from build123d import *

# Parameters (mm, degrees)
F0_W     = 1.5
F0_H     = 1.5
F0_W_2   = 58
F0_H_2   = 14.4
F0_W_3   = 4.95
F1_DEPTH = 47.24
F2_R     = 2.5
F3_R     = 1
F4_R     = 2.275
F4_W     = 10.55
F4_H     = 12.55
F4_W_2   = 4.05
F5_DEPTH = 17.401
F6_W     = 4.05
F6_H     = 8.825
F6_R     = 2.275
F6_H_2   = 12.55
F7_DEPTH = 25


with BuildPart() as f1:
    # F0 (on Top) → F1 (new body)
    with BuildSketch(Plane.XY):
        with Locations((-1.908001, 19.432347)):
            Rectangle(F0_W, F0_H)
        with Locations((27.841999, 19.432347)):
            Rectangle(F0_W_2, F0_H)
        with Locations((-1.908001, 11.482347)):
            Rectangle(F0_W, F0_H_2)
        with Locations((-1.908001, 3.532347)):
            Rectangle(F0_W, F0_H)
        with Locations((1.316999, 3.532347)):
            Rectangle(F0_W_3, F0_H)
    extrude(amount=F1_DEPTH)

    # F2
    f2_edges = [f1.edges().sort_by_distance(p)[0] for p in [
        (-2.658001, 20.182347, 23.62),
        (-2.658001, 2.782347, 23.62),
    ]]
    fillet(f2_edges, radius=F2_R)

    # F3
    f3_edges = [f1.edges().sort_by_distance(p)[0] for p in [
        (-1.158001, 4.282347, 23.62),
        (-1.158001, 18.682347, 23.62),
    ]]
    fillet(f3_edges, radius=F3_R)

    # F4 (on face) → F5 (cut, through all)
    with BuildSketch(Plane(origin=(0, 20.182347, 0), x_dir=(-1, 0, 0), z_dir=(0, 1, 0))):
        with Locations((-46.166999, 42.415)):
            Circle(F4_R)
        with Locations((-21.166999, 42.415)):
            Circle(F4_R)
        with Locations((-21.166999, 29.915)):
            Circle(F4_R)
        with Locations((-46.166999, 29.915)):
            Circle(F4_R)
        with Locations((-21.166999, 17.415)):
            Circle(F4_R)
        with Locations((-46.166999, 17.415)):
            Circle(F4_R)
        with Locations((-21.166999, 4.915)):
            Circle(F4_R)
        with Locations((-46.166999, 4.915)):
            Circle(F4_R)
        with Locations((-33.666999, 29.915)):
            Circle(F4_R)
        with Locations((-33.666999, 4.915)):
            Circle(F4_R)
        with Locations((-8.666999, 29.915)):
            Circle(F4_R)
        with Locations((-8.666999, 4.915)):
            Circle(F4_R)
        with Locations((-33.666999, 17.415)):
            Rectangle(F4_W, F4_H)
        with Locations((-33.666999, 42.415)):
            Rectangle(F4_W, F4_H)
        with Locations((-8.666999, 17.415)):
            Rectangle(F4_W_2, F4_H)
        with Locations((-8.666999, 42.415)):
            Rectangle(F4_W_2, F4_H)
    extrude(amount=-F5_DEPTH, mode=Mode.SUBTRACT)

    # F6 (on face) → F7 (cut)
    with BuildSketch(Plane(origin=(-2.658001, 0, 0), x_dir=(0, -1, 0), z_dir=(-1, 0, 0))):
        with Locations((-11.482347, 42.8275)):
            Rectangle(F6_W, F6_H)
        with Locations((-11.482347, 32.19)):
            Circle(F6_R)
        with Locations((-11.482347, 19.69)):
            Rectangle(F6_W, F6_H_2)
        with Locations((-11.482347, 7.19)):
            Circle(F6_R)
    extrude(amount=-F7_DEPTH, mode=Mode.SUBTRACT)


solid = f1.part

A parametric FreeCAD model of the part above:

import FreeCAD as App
import Part
import Sketcher
Q = App.Units.Quantity


def edges_at(feature, points):
    """Names of the edges that pass closest to the given points."""
    edges = feature.Shape.Edges
    near = lambda p: min(range(len(edges)), key=lambda i: edges[i].distToShape(Part.Vertex(*p))[0])
    return sorted({f"Edge{near(p) + 1}" for p in points})


def add_polygon(sketch, points):
    """Adds a closed chain of lines whose ends are joined by coincident constraints."""
    first, n = sketch.GeometryCount, len(points)
    for a, b in zip(points, points[1:] + points[:1]):
        sketch.addGeometry(Part.LineSegment(App.Vector(*a, 0), App.Vector(*b, 0)), False)
    for i in range(n):
        sketch.addConstraint(Sketcher.Constraint("Coincident", first + i, 2, first + (i + 1) % n, 1))

doc = App.newDocument("Part")
body = doc.addObject("PartDesign::Body", "Body")

# Sketch on XY plane
sketch1 = doc.addObject("Sketcher::SketchObject", "Sketch")
body.addObject(sketch1)
sketch1.AttachmentSupport = (doc.XY_Plane, [""])
sketch1.MapMode = "FlatFace"
add_polygon(sketch1, [(-2.7, 20.2), (-2.7, 2.8), (3.8, 2.8), (3.8, 4.3), (-1.2, 4.3), (-1.2, 18.7), (56.8, 18.7), (56.8, 20.2)])  # lines 0-7
sketch1.addConstraint(Sketcher.Constraint("Vertical", 0))
sketch1.addConstraint(Sketcher.Constraint("Horizontal", 1))
sketch1.addConstraint(Sketcher.Constraint("Vertical", 2))
sketch1.addConstraint(Sketcher.Constraint("Horizontal", 3))
sketch1.addConstraint(Sketcher.Constraint("Vertical", 4))
sketch1.addConstraint(Sketcher.Constraint("Horizontal", 5))
sketch1.addConstraint(Sketcher.Constraint("Vertical", 6))
sketch1.addConstraint(Sketcher.Constraint("Horizontal", 7))
sketch1.addConstraint(Sketcher.Constraint("Equal", 2, 6))
sketch1.addConstraint(Sketcher.Constraint("DistanceX", 5, 1, 5, 2, Q("58 mm")))
sketch1.addConstraint(Sketcher.Constraint("DistanceX", 7, 2, 7, 1, Q("59.5 mm")))
sketch1.addConstraint(Sketcher.Constraint("DistanceY", 0, 2, 0, 1, Q("17.4 mm")))
sketch1.addConstraint(Sketcher.Constraint("DistanceY", 2, 1, 2, 2, Q("1.5 mm")))
sketch1.addConstraint(Sketcher.Constraint("DistanceX", 1, 1, 1, 2, Q("6.45 mm")))
sketch1.addConstraint(Sketcher.Constraint("DistanceX", 0, 2, -1, 1, Q("2.658001 mm")))
sketch1.addConstraint(Sketcher.Constraint("DistanceY", -1, 1, 0, 2, Q("2.782347 mm")))
pad1 = doc.addObject("PartDesign::Pad", "Pad")
body.addObject(pad1)
pad1.Profile = sketch1
pad1.Length = 47.24
doc.recompute()

fillet = doc.addObject("PartDesign::Fillet", "Fillet")
body.addObject(fillet)
fillet.Base = (pad1, edges_at(pad1, [(-2.658, 20.182, 23.62), (-2.658, 2.782, 23.62)]))
fillet.Radius = 2.5
doc.recompute()

fillet2 = doc.addObject("PartDesign::Fillet", "Fillet001")
body.addObject(fillet2)
fillet2.Base = (fillet, edges_at(fillet, [(-1.158, 4.282, 23.62), (-1.158, 18.682, 23.62)]))
fillet2.Radius = 1

# Sketch on XZ plane
sketch2 = doc.addObject("Sketcher::SketchObject", "Sketch001")
body.addObject(sketch2)
sketch2.AttachmentSupport = (doc.XZ_Plane, [""])
sketch2.MapMode = "FlatFace"
sketch2.AttachmentOffset = App.Placement(App.Vector(0, 0, -20.182347), App.Rotation())
sketch2.addGeometry(Part.Circle(App.Vector(46.2, 42.4, 0), App.Vector(0, 0, 1), 2.3), False)  # 0
sketch2.addGeometry(Part.Circle(App.Vector(21.2, 42.4, 0), App.Vector(0, 0, 1), 2.3), False)  # 1
sketch2.addGeometry(Part.Circle(App.Vector(21.2, 29.9, 0), App.Vector(0, 0, 1), 2.3), False)  # 2
sketch2.addGeometry(Part.Circle(App.Vector(46.2, 29.9, 0), App.Vector(0, 0, 1), 2.3), False)  # 3
sketch2.addGeometry(Part.Circle(App.Vector(21.2, 17.4, 0), App.Vector(0, 0, 1), 2.3), False)  # 4
sketch2.addGeometry(Part.Circle(App.Vector(46.2, 17.4, 0), App.Vector(0, 0, 1), 2.3), False)  # 5
sketch2.addGeometry(Part.Circle(App.Vector(21.2, 4.9, 0), App.Vector(0, 0, 1), 2.3), False)  # 6
sketch2.addGeometry(Part.Circle(App.Vector(46.2, 4.9, 0), App.Vector(0, 0, 1), 2.3), False)  # 7
sketch2.addGeometry(Part.Circle(App.Vector(33.7, 29.9, 0), App.Vector(0, 0, 1), 2.3), False)  # 8
sketch2.addGeometry(Part.Circle(App.Vector(33.7, 4.9, 0), App.Vector(0, 0, 1), 2.3), False)  # 9
sketch2.addGeometry(Part.Circle(App.Vector(8.7, 29.9, 0), App.Vector(0, 0, 1), 2.3), False)  # 10
sketch2.addGeometry(Part.Circle(App.Vector(8.7, 4.9, 0), App.Vector(0, 0, 1), 2.3), False)  # 11
add_polygon(sketch2, [(38.9, 23.7), (38.9, 11.1), (28.4, 11.1), (28.4, 23.7)])  # lines 12-15
add_polygon(sketch2, [(38.9, 48.7), (38.9, 36.1), (28.4, 36.1), (28.4, 48.7)])  # lines 16-19
add_polygon(sketch2, [(10.7, 23.7), (10.7, 11.1), (6.6, 11.1), (6.6, 23.7)])  # lines 20-23
add_polygon(sketch2, [(10.7, 48.7), (10.7, 36.1), (6.6, 36.1), (6.6, 48.7)])  # lines 24-27
sketch2.addConstraint(Sketcher.Constraint("Vertical", 12))
sketch2.addConstraint(Sketcher.Constraint("Horizontal", 13))
sketch2.addConstraint(Sketcher.Constraint("Vertical", 14))
sketch2.addConstraint(Sketcher.Constraint("Horizontal", 15))
sketch2.addConstraint(Sketcher.Constraint("Vertical", 16))
sketch2.addConstraint(Sketcher.Constraint("Horizontal", 17))
sketch2.addConstraint(Sketcher.Constraint("Vertical", 18))
sketch2.addConstraint(Sketcher.Constraint("Horizontal", 19))
sketch2.addConstraint(Sketcher.Constraint("Vertical", 20))
sketch2.addConstraint(Sketcher.Constraint("Horizontal", 21))
sketch2.addConstraint(Sketcher.Constraint("Vertical", 22))
sketch2.addConstraint(Sketcher.Constraint("Horizontal", 23))
sketch2.addConstraint(Sketcher.Constraint("Vertical", 24))
sketch2.addConstraint(Sketcher.Constraint("Horizontal", 25))
sketch2.addConstraint(Sketcher.Constraint("Vertical", 26))
sketch2.addConstraint(Sketcher.Constraint("Horizontal", 27))
sketch2.addConstraint(Sketcher.Constraint("Equal", 0, 1))
sketch2.addConstraint(Sketcher.Constraint("Equal", 1, 2))
sketch2.addConstraint(Sketcher.Constraint("Equal", 2, 3))
sketch2.addConstraint(Sketcher.Constraint("Equal", 3, 4))
sketch2.addConstraint(Sketcher.Constraint("Equal", 4, 5))
sketch2.addConstraint(Sketcher.Constraint("Equal", 5, 6))
sketch2.addConstraint(Sketcher.Constraint("Equal", 6, 7))
sketch2.addConstraint(Sketcher.Constraint("Equal", 7, 8))
sketch2.addConstraint(Sketcher.Constraint("Equal", 8, 9))
sketch2.addConstraint(Sketcher.Constraint("Equal", 9, 10))
sketch2.addConstraint(Sketcher.Constraint("Equal", 10, 11))
sketch2.addConstraint(Sketcher.Constraint("Horizontal", 0, 3, 1, 3))
sketch2.addConstraint(Sketcher.Constraint("Horizontal", 2, 3, 3, 3))
sketch2.addConstraint(Sketcher.Constraint("Horizontal", 4, 3, 5, 3))
sketch2.addConstraint(Sketcher.Constraint("Horizontal", 6, 3, 7, 3))
sketch2.addConstraint(Sketcher.Constraint("Horizontal", 3, 3, 8, 3))
sketch2.addConstraint(Sketcher.Constraint("Horizontal", 7, 3, 9, 3))
sketch2.addConstraint(Sketcher.Constraint("Horizontal", 8, 3, 10, 3))
sketch2.addConstraint(Sketcher.Constraint("Horizontal", 9, 3, 11, 3))
sketch2.addConstraint(Sketcher.Constraint("Horizontal", 13, 2, 20, 2))
sketch2.addConstraint(Sketcher.Constraint("Horizontal", 15, 2, 22, 2))
sketch2.addConstraint(Sketcher.Constraint("Horizontal", 17, 2, 24, 2))
sketch2.addConstraint(Sketcher.Constraint("Horizontal", 19, 2, 26, 2))
sketch2.addConstraint(Sketcher.Constraint("Vertical", 1, 3, 2, 3))
sketch2.addConstraint(Sketcher.Constraint("Vertical", 0, 3, 3, 3))
sketch2.addConstraint(Sketcher.Constraint("Vertical", 2, 3, 4, 3))
sketch2.addConstraint(Sketcher.Constraint("Vertical", 3, 3, 5, 3))
sketch2.addConstraint(Sketcher.Constraint("Vertical", 4, 3, 6, 3))
sketch2.addConstraint(Sketcher.Constraint("Vertical", 5, 3, 7, 3))
sketch2.addConstraint(Sketcher.Constraint("Vertical", 8, 3, 9, 3))
sketch2.addConstraint(Sketcher.Constraint("Vertical", 10, 3, 11, 3))
sketch2.addConstraint(Sketcher.Constraint("Vertical", 15, 2, 16, 2))
sketch2.addConstraint(Sketcher.Constraint("Vertical", 14, 2, 17, 2))
sketch2.addConstraint(Sketcher.Constraint("Vertical", 23, 2, 24, 2))
sketch2.addConstraint(Sketcher.Constraint("Vertical", 22, 2, 25, 2))
sketch2.addConstraint(Sketcher.Constraint("Equal", 14, 16))
sketch2.addConstraint(Sketcher.Constraint("Diameter", 0, Q("4.55 mm")))
sketch2.addConstraint(Sketcher.Constraint("DistanceX", 1, 3, 0, 3, Q("25 mm")))
sketch2.addConstraint(Sketcher.Constraint("DistanceY", 4, 3, 1, 3, Q("25 mm")))
sketch2.addConstraint(Sketcher.Constraint("DistanceY", 6, 3, 2, 3, Q("25 mm")))
sketch2.addConstraint(Sketcher.Constraint("DistanceX", 10, 3, 8, 3, Q("25 mm")))
sketch2.addConstraint(Sketcher.Constraint("DistanceX", 13, 2, 13, 1, Q("10.55 mm")))
sketch2.addConstraint(Sketcher.Constraint("DistanceX", 21, 2, 21, 1, Q("4.05 mm")))
sketch2.addConstraint(Sketcher.Constraint("DistanceY", 12, 2, 12, 1, Q("12.55 mm")))
sketch2.addConstraint(Sketcher.Constraint("DistanceY", 2, 3, 1, 3, Q("12.5 mm")))
sketch2.addConstraint(Sketcher.Constraint("DistanceX", 2, 3, 8, 3, Q("12.5 mm")))
sketch2.addConstraint(Sketcher.Constraint("DistanceX", 20, 2, 13, 2, Q("17.7 mm")))
sketch2.addConstraint(Sketcher.Constraint("DistanceY", -1, 1, 12, 2, Q("11.14 mm")))
sketch2.addConstraint(Sketcher.Constraint("DistanceY", -1, 1, 16, 2, Q("36.14 mm")))
sketch2.addConstraint(Sketcher.Constraint("DistanceX", -1, 1, 0, 3, Q("46.166999 mm")))
sketch2.addConstraint(Sketcher.Constraint("DistanceY", -1, 1, 0, 3, Q("42.415 mm")))
sketch2.addConstraint(Sketcher.Constraint("DistanceX", -1, 1, 12, 2, Q("38.941999 mm")))
pocket1 = doc.addObject("PartDesign::Pocket", "Pocket")
body.addObject(pocket1)
pocket1.Profile = sketch2
pocket1.Type = "ThroughAll"
pocket1.Reversed = True

# Sketch on YZ plane
sketch3 = doc.addObject("Sketcher::SketchObject", "Sketch002")
body.addObject(sketch3)
sketch3.AttachmentSupport = (doc.YZ_Plane, [""])
sketch3.MapMode = "FlatFace"
sketch3.AttachmentOffset = App.Placement(App.Vector(0, 0, -2.658001), App.Rotation())
add_polygon(sketch3, [(13.5, 47.2), (13.5, 38.4), (9.5, 38.4), (9.5, 47.2)])  # lines 0-3
sketch3.addGeometry(Part.Circle(App.Vector(11.5, 32.2, 0), App.Vector(0, 0, 1), 2.3), False)  # 4
add_polygon(sketch3, [(13.5, 26), (13.5, 13.4), (9.5, 13.4), (9.5, 26)])  # lines 5-8
sketch3.addGeometry(Part.Circle(App.Vector(11.5, 7.2, 0), App.Vector(0, 0, 1), 2.3), False)  # 9
sketch3.addConstraint(Sketcher.Constraint("Vertical", 0))
sketch3.addConstraint(Sketcher.Constraint("Horizontal", 1))
sketch3.addConstraint(Sketcher.Constraint("Vertical", 2))
sketch3.addConstraint(Sketcher.Constraint("Horizontal", 3))
sketch3.addConstraint(Sketcher.Constraint("Vertical", 5))
sketch3.addConstraint(Sketcher.Constraint("Horizontal", 6))
sketch3.addConstraint(Sketcher.Constraint("Vertical", 7))
sketch3.addConstraint(Sketcher.Constraint("Horizontal", 8))
sketch3.addConstraint(Sketcher.Constraint("Equal", 4, 9))
sketch3.addConstraint(Sketcher.Constraint("Vertical", 4, 3, 9, 3))
sketch3.addConstraint(Sketcher.Constraint("Vertical", 3, 2, 5, 2))
sketch3.addConstraint(Sketcher.Constraint("Vertical", 2, 2, 6, 2))
sketch3.addConstraint(Sketcher.Constraint("Diameter", 4, Q("4.55 mm")))
sketch3.addConstraint(Sketcher.Constraint("DistanceY", 9, 3, 4, 3, Q("25 mm")))
sketch3.addConstraint(Sketcher.Constraint("DistanceY", 5, 2, 0, 2, Q("25 mm")))
sketch3.addConstraint(Sketcher.Constraint("DistanceX", 1, 2, 1, 1, Q("4.05 mm")))
sketch3.addConstraint(Sketcher.Constraint("DistanceY", 5, 2, 5, 1, Q("12.55 mm")))
sketch3.addConstraint(Sketcher.Constraint("DistanceY", 0, 2, 0, 1, Q("8.825 mm")))
sketch3.addConstraint(Sketcher.Constraint("DistanceY", -1, 1, 4, 3, Q("32.19 mm")))
sketch3.addConstraint(Sketcher.Constraint("DistanceY", -1, 1, 2, 2, Q("47.24 mm")))
sketch3.addConstraint(Sketcher.Constraint("DistanceX", 4, 3, 0, 2, Q("2.025 mm")))
sketch3.addConstraint(Sketcher.Constraint("DistanceX", -1, 1, 4, 3, Q("11.482347 mm")))
pocket2 = doc.addObject("PartDesign::Pocket", "Pocket001")
body.addObject(pocket2)
pocket2.Profile = sketch3
pocket2.Length = 25
pocket2.Reversed = True

doc.recompute()
